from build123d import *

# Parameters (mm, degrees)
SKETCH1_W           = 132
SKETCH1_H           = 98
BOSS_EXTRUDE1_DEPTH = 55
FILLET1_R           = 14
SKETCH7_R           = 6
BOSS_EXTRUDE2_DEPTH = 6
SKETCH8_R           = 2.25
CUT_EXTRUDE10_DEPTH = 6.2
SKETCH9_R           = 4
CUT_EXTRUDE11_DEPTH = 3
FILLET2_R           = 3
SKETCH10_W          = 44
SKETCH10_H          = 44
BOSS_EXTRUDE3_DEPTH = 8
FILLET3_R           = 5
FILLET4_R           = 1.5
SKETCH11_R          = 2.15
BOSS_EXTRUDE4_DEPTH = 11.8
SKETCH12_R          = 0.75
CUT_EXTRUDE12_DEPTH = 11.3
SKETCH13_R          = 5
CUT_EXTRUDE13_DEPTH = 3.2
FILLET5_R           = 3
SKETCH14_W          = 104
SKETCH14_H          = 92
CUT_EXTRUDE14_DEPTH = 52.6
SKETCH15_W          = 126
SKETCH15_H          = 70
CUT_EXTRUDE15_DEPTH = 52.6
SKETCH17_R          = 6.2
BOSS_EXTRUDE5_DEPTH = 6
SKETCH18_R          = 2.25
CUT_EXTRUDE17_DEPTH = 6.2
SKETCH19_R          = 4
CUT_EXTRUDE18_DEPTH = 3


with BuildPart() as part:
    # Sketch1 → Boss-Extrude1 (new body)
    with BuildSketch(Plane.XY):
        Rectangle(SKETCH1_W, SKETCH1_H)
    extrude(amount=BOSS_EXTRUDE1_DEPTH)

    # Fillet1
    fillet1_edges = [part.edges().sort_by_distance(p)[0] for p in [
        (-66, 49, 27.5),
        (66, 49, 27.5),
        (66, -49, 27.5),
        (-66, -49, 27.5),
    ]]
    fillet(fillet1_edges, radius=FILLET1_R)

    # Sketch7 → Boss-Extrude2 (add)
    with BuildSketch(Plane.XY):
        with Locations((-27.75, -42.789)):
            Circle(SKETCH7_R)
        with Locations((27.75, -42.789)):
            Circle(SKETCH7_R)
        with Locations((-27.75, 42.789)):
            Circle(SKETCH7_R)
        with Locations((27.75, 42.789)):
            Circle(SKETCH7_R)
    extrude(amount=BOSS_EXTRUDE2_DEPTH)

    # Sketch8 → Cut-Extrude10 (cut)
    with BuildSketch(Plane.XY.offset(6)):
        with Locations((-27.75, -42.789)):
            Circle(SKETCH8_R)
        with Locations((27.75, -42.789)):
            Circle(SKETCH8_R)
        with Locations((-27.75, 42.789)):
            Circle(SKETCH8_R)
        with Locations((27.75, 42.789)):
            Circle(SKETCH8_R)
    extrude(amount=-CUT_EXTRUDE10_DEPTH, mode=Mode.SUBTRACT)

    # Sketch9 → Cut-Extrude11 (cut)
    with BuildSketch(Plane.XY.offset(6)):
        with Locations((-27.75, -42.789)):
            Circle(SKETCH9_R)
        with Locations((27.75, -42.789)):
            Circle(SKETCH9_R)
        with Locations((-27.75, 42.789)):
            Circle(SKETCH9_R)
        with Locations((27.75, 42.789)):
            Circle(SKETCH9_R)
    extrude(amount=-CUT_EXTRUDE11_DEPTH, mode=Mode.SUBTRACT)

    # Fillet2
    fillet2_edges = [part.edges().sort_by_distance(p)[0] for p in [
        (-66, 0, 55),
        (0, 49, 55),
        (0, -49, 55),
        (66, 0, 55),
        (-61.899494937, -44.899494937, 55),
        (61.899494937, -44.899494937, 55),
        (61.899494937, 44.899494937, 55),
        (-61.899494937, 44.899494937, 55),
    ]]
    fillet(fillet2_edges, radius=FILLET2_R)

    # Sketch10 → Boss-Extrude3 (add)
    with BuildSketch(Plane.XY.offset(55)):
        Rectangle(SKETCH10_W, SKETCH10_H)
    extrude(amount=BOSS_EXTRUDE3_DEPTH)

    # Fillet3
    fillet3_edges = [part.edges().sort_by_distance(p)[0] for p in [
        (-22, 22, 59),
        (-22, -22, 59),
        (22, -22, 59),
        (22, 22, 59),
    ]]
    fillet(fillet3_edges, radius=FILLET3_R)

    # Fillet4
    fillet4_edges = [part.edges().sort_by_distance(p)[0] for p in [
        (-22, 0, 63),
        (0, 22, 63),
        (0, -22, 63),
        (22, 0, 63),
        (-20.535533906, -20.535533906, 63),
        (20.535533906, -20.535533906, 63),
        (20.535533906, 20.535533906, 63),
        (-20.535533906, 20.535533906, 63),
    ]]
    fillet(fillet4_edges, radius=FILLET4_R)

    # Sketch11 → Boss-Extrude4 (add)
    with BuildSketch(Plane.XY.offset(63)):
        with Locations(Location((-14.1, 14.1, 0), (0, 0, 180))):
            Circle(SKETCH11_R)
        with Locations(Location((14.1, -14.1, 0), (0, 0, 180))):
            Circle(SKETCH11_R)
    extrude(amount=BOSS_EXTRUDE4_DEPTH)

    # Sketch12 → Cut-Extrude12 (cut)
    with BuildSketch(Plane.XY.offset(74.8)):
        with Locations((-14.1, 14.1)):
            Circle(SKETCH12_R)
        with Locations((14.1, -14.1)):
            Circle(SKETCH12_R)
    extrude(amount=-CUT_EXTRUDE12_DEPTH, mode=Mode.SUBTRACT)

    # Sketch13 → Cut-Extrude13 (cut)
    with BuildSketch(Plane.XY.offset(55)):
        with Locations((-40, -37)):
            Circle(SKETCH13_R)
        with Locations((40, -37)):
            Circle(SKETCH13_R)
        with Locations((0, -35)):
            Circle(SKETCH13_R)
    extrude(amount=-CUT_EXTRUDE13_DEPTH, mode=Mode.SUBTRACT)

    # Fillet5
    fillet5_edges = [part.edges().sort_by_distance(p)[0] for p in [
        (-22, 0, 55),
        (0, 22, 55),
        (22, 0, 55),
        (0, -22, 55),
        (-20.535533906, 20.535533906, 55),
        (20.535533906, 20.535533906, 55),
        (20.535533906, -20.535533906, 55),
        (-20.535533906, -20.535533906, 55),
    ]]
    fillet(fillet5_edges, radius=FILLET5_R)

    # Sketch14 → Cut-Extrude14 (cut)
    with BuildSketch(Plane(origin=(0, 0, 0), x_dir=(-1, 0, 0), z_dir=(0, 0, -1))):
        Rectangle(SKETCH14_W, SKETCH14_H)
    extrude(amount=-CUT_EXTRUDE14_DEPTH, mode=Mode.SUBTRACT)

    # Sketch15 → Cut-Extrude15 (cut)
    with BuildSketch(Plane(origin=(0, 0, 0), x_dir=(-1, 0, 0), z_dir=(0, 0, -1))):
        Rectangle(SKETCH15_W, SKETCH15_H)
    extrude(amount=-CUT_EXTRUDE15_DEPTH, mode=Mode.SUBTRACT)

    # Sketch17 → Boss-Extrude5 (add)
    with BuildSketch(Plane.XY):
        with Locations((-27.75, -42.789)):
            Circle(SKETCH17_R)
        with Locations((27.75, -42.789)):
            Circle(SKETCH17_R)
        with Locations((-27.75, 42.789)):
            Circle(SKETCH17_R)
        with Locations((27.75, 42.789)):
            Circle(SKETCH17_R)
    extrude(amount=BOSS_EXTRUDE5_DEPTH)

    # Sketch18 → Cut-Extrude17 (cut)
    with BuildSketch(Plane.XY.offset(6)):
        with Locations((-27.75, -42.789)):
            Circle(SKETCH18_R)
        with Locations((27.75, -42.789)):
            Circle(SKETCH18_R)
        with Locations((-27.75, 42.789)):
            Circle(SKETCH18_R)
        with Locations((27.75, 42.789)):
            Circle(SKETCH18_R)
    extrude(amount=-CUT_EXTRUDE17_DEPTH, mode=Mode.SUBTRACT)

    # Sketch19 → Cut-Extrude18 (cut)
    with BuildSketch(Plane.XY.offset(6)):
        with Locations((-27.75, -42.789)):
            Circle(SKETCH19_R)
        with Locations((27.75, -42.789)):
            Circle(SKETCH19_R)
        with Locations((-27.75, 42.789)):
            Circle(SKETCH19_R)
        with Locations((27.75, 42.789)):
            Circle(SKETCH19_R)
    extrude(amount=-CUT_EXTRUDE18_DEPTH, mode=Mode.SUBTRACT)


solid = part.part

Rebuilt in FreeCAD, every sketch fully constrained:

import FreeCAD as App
import Part
import Sketcher
from FreeCAD import Vector


def edges_at(feature, points):
    """Names of the edges that pass closest to the given points."""
    edges = feature.Shape.Edges
    near = lambda p: min(range(len(edges)), key=lambda i: edges[i].distToShape(Part.Vertex(*p))[0])
    return sorted({f"Edge{near(p) + 1}" for p in points})


def add_polygon(sketch, points):
    """Adds a closed chain of lines whose ends are joined by coincident constraints."""
    first, n = sketch.GeometryCount, len(points)
    for a, b in zip(points, points[1:] + points[:1]):
        sketch.addGeometry(Part.LineSegment(App.Vector(*a, 0), App.Vector(*b, 0)), False)
    for i in range(n):
        sketch.addConstraint(Sketcher.Constraint("Coincident", first + i, 2, first + (i + 1) % n, 1))

doc = App.newDocument("Part")
body = doc.addObject("PartDesign::Body", "Body")

# Sketch on XY plane
sketch1 = body.newObject("Sketcher::SketchObject", "Sketch")
sketch1.AttachmentSupport = (doc.getObject("XY_Plane"), [""])
sketch1.MapMode = "FlatFace"
add_polygon(sketch1, [(-66, 49), (-66, -49), (66, -49), (66, 49)])  # lines 0-3
sketch1.addConstraint([
    Sketcher.Constraint("Vertical", 0),
    Sketcher.Constraint("Horizontal", 1),
    Sketcher.Constraint("Vertical", 2),
    Sketcher.Constraint("Horizontal", 3),
    Sketcher.Constraint("Symmetric", 0, 2, 2, 2, -1, 1),
    Sketcher.Constraint("DistanceX", 1, 1, 1, 2, 132.0),
    Sketcher.Constraint("DistanceY", 0, 2, 0, 1, 98.0),
])
pad1 = body.newObject("PartDesign::Pad", "Pad")
pad1.Profile = sketch1
pad1.Length = 55
doc.recompute()

fillet = body.newObject("PartDesign::Fillet", "Fillet")
fillet.Base = (pad1, edges_at(pad1, [
    (-66, 49, 27.5),
    (66, 49, 27.5),
    (66, -49, 27.5),
    (-66, -49, 27.5),
]))
fillet.Radius = 14

# Sketch on XY plane
sketch2 = body.newObject("Sketcher::SketchObject", "Sketch001")
sketch2.AttachmentSupport = (doc.getObject("XY_Plane"), [""])
sketch2.MapMode = "FlatFace"
sketch2.addGeometry([
    Part.Circle(Vector(-28, -43, 0), Vector(0, 0, 1), 6),
    Part.Circle(Vector(28, -43, 0), Vector(0, 0, 1), 6),
    Part.Circle(Vector(-28, 43, 0), Vector(0, 0, 1), 6),
    Part.Circle(Vector(28, 43, 0), Vector(0, 0, 1), 6),
], False)
sketch2.addConstraint([
    Sketcher.Constraint("Equal", 0, 1),
    Sketcher.Constraint("Equal", 1, 2),
    Sketcher.Constraint("Equal", 2, 3),
    Sketcher.Constraint("Symmetric", 1, 3, 2, 3, -1, 1),
    Sketcher.Constraint("Symmetric", 0, 3, 3, 3, -1, 1),
    Sketcher.Constraint("Symmetric", 0, 3, 1, 3, -2),
    Sketcher.Constraint("Diameter", 0, 12.0),
    Sketcher.Constraint("DistanceX", 0, 3, 1, 3, 55.5),
    Sketcher.Constraint("DistanceY", 0, 3, -1, 1, 42.789),
])
pad2 = body.newObject("PartDesign::Pad", "Pad001")
pad2.Profile = sketch2
pad2.Length = 6

# Sketch on XY plane
sketch3 = body.newObject("Sketcher::SketchObject", "Sketch002")
sketch3.AttachmentSupport = (doc.getObject("XY_Plane"), [""])
sketch3.MapMode = "FlatFace"
sketch3.AttachmentOffset = App.Placement(Vector(0, 0, 6), App.Rotation())
sketch3.addGeometry([
    Part.Circle(Vector(-27.8, -42.8, 0), Vector(0, 0, 1), 2.2),
    Part.Circle(Vector(27.8, -42.8, 0), Vector(0, 0, 1), 2.2),
    Part.Circle(Vector(-27.8, 42.8, 0), Vector(0, 0, 1), 2.2),
    Part.Circle(Vector(27.8, 42.8, 0), Vector(0, 0, 1), 2.2),
], False)
sketch3.addConstraint([
    Sketcher.Constraint("Equal", 0, 1),
    Sketcher.Constraint("Equal", 1, 2),
    Sketcher.Constraint("Equal", 2, 3),
    Sketcher.Constraint("Symmetric", 1, 3, 2, 3, -1, 1),
    Sketcher.Constraint("Symmetric", 0, 3, 3, 3, -1, 1),
    Sketcher.Constraint("Symmetric", 0, 3, 1, 3, -2),
    Sketcher.Constraint("Diameter", 0, 4.5),
    Sketcher.Constraint("DistanceX", 0, 3, 1, 3, 55.5),
    Sketcher.Constraint("DistanceY", 0, 3, -1, 1, 42.789),
])
pocket1 = body.newObject("PartDesign::Pocket", "Pocket")
pocket1.Profile = sketch3
pocket1.Length = 6.2

# Sketch on XY plane
sketch4 = body.newObject("Sketcher::SketchObject", "Sketch003")
sketch4.AttachmentSupport = (doc.getObject("XY_Plane"), [""])
sketch4.MapMode = "FlatFace"
sketch4.AttachmentOffset = App.Placement(Vector(0, 0, 6), App.Rotation())
sketch4.addGeometry([
    Part.Circle(Vector(-27.8, -42.8, 0), Vector(0, 0, 1), 4),
    Part.Circle(Vector(27.8, -42.8, 0), Vector(0, 0, 1), 4),
    Part.Circle(Vector(-27.8, 42.8, 0), Vector(0, 0, 1), 4),
    Part.Circle(Vector(27.8, 42.8, 0), Vector(0, 0, 1), 4),
], False)
sketch4.addConstraint([
    Sketcher.Constraint("Equal", 0, 1),
    Sketcher.Constraint("Equal", 1, 2),
    Sketcher.Constraint("Equal", 2, 3),
    Sketcher.Constraint("Symmetric", 1, 3, 2, 3, -1, 1),
    Sketcher.Constraint("Symmetric", 0, 3, 3, 3, -1, 1),
    Sketcher.Constraint("Symmetric", 0, 3, 1, 3, -2),
    Sketcher.Constraint("Diameter", 0, 8.0),
    Sketcher.Constraint("DistanceX", 0, 3, 1, 3, 55.5),
    Sketcher.Constraint("DistanceY", 0, 3, -1, 1, 42.789),
])
pocket2 = body.newObject("PartDesign::Pocket", "Pocket001")
pocket2.Profile = sketch4
pocket2.Length = 3
doc.recompute()

fillet2 = body.newObject("PartDesign::Fillet", "Fillet001")
fillet2.Base = (pocket2, edges_at(pocket2, [
    (-66, 0, 55),
    (0, 49, 55),
    (0, -49, 55),
    (66, 0, 55),
    (-61.899, -44.899, 55),
    (61.899, -44.899, 55),
    (61.899, 44.899, 55),
    (-61.899, 44.899, 55),
]))
fillet2.Radius = 3

# Sketch on XY plane
sketch5 = body.newObject("Sketcher::SketchObject", "Sketch004")
sketch5.AttachmentSupport = (doc.getObject("XY_Plane"), [""])
sketch5.MapMode = "FlatFace"
sketch5.AttachmentOffset = App.Placement(Vector(0, 0, 55), App.Rotation())
add_polygon(sketch5, [(-22, 22), (-22, -22), (22, -22), (22, 22)])  # lines 0-3
sketch5.addConstraint([
    Sketcher.Constraint("Vertical", 0),
    Sketcher.Constraint("Horizontal", 1),
    Sketcher.Constraint("Vertical", 2),
    Sketcher.Constraint("Horizontal", 3),
    Sketcher.Constraint("Symmetric", 0, 2, 2, 2, -1, 1),
    Sketcher.Constraint("Equal", 3, 0),
    Sketcher.Constraint("DistanceX", 1, 1, 1, 2, 44.0),
])
pad3 = body.newObject("PartDesign::Pad", "Pad002")
pad3.Profile = sketch5
pad3.Length = 8
doc.recompute()

fillet3 = body.newObject("PartDesign::Fillet", "Fillet002")
fillet3.Base = (pad3, edges_at(pad3, [
    (-22, 22, 59),
    (-22, -22, 59),
    (22, -22, 59),
    (22, 22, 59),
]))
fillet3.Radius = 5
doc.recompute()

fillet4 = body.newObject("PartDesign::Fillet", "Fillet003")
fillet4.Base = (fillet3, edges_at(fillet3, [
    (-22, 0, 63),
    (0, 22, 63),
    (0, -22, 63),
    (22, 0, 63),
    (-20.536, -20.536, 63),
    (20.536, -20.536, 63),
    (20.536, 20.536, 63),
    (-20.536, 20.536, 63),
]))
fillet4.Radius = 1.5

# Sketch on XY plane
sketch6 = body.newObject("Sketcher::SketchObject", "Sketch005")
sketch6.AttachmentSupport = (doc.getObject("XY_Plane"), [""])
sketch6.MapMode = "FlatFace"
sketch6.AttachmentOffset = App.Placement(Vector(0, 0, 63), App.Rotation())
sketch6.addGeometry([
    Part.Circle(Vector(-14.1, 14.1, 0), Vector(0, 0, 1), 2.1),
    Part.Circle(Vector(14.1, -14.1, 0), Vector(0, 0, 1), 2.1),
], False)
sketch6.addConstraint([
    Sketcher.Constraint("Equal", 0, 1),
    Sketcher.Constraint("Symmetric", 0, 3, 1, 3, -1, 1),
    Sketcher.Constraint("Diameter", 0, 4.3),
    Sketcher.Constraint("DistanceX", 0, 3, -1, 1, 14.1),
    Sketcher.Constraint("DistanceY", -1, 1, 0, 3, 14.1),
])
pad4 = body.newObject("PartDesign::Pad", "Pad003")
pad4.Profile = sketch6
pad4.Length = 11.8

# Sketch on XY plane
sketch7 = body.newObject("Sketcher::SketchObject", "Sketch006")
sketch7.AttachmentSupport = (doc.getObject("XY_Plane"), [""])
sketch7.MapMode = "FlatFace"
sketch7.AttachmentOffset = App.Placement(Vector(0, 0, 74.8), App.Rotation())
sketch7.addGeometry([
    Part.Circle(Vector(-14.1, 14.1, 0), Vector(0, 0, 1), 0.8),
    Part.Circle(Vector(14.1, -14.1, 0), Vector(0, 0, 1), 0.8),
], False)
sketch7.addConstraint([
    Sketcher.Constraint("Equal", 0, 1),
    Sketcher.Constraint("Symmetric", 0, 3, 1, 3, -1, 1),
    Sketcher.Constraint("Diameter", 0, 1.5),
    Sketcher.Constraint("DistanceX", 0, 3, -1, 1, 14.1),
    Sketcher.Constraint("DistanceY", -1, 1, 0, 3, 14.1),
])
pocket3 = body.newObject("PartDesign::Pocket", "Pocket002")
pocket3.Profile = sketch7
pocket3.Length = 11.3

# Sketch on XY plane
sketch8 = body.newObject("Sketcher::SketchObject", "Sketch007")
sketch8.AttachmentSupport = (doc.getObject("XY_Plane"), [""])
sketch8.MapMode = "FlatFace"
sketch8.AttachmentOffset = App.Placement(Vector(0, 0, 55), App.Rotation())
sketch8.addGeometry([
    Part.Circle(Vector(-40, -37, 0), Vector(0, 0, 1), 5),
    Part.Circle(Vector(40, -37, 0), Vector(0, 0, 1), 5),
    Part.Circle(Vector(0, -35, 0), Vector(0, 0, 1), 5),
], False)
sketch8.addConstraint([
    Sketcher.Constraint("Equal", 0, 1),
    Sketcher.Constraint("Equal", 1, 2),
    Sketcher.Constraint("Symmetric", 0, 3, 1, 3, -2),
    Sketcher.Constraint("PointOnObject", 2, 3, -2),
    Sketcher.Constraint("Diameter", 0, 10.0),
    Sketcher.Constraint("DistanceX", 0, 3, -1, 1, 40.0),
    Sketcher.Constraint("DistanceY", 0, 3, -1, 1, 37.0),
    Sketcher.Constraint("DistanceY", 2, 3, -1, 1, 35.0),
])
pocket4 = body.newObject("PartDesign::Pocket", "Pocket003")
pocket4.Profile = sketch8
pocket4.Length = 3.2
doc.recompute()

fillet5 = body.newObject("PartDesign::Fillet", "Fillet004")
fillet5.Base = (pocket4, edges_at(pocket4, [
    (-22, 0, 55),
    (0, 22, 55),
    (22, 0, 55),
    (0, -22, 55),
    (-20.536, 20.536, 55),
    (20.536, 20.536, 55),
    (20.536, -20.536, 55),
    (-20.536, -20.536, 55),
]))
fillet5.Radius = 3

# Sketch on XY plane
sketch9 = body.newObject("Sketcher::SketchObject", "Sketch008")
sketch9.AttachmentSupport = (doc.getObject("XY_Plane"), [""])
sketch9.MapMode = "FlatFace"
add_polygon(sketch9, [(52, 46), (52, -46), (-52, -46), (-52, 46)])  # lines 0-3
sketch9.addConstraint([
    Sketcher.Constraint("Vertical", 0),
    Sketcher.Constraint("Horizontal", 1),
    Sketcher.Constraint("Vertical", 2),
    Sketcher.Constraint("Horizontal", 3),
    Sketcher.Constraint("Symmetric", 0, 2, 2, 2, -1, 1),
    Sketcher.Constraint("DistanceX", 1, 2, 1, 1, 104.0),
    Sketcher.Constraint("DistanceY", 0, 2, 0, 1, 92.0),
])
pocket5 = body.newObject("PartDesign::Pocket", "Pocket004")
pocket5.Profile = sketch9
pocket5.Length = 52.6
pocket5.Reversed = True

# Sketch on XY plane
sketch10 = body.newObject("Sketcher::SketchObject", "Sketch009")
sketch10.AttachmentSupport = (doc.getObject("XY_Plane"), [""])
sketch10.MapMode = "FlatFace"
add_polygon(sketch10, [(63, 35), (63, -35), (-63, -35), (-63, 35)])  # lines 0-3
sketch10.addConstraint([
    Sketcher.Constraint("Vertical", 0),
    Sketcher.Constraint("Horizontal", 1),
    Sketcher.Constraint("Vertical", 2),
    Sketcher.Constraint("Horizontal", 3),
    Sketcher.Constraint("Symmetric", 0, 2, 2, 2, -1, 1),
    Sketcher.Constraint("DistanceX", 1, 2, 1, 1, 126.0),
    Sketcher.Constraint("DistanceY", 0, 2, 0, 1, 70.0),
])
pocket6 = body.newObject("PartDesign::Pocket", "Pocket005")
pocket6.Profile = sketch10
pocket6.Length = 52.6
pocket6.Reversed = True

# Sketch on XY plane
sketch11 = body.newObject("Sketcher::SketchObject", "Sketch010")
sketch11.AttachmentSupport = (doc.getObject("XY_Plane"), [""])
sketch11.MapMode = "FlatFace"
sketch11.addGeometry([
    Part.Circle(Vector(-28, -43, 0), Vector(0, 0, 1), 6),
    Part.Circle(Vector(28, -43, 0), Vector(0, 0, 1), 6),
    Part.Circle(Vector(-28, 43, 0), Vector(0, 0, 1), 6),
    Part.Circle(Vector(28, 43, 0), Vector(0, 0, 1), 6),
], False)
sketch11.addConstraint([
    Sketcher.Constraint("Equal", 0, 1),
    Sketcher.Constraint("Equal", 1, 2),
    Sketcher.Constraint("Equal", 2, 3),
    Sketcher.Constraint("Symmetric", 1, 3, 2, 3, -1, 1),
    Sketcher.Constraint("Symmetric", 0, 3, 3, 3, -1, 1),
    Sketcher.Constraint("Symmetric", 0, 3, 1, 3, -2),
    Sketcher.Constraint("Diameter", 0, 12.4),
    Sketcher.Constraint("DistanceX", 0, 3, 1, 3, 55.5),
    Sketcher.Constraint("DistanceY", 0, 3, -1, 1, 42.789),
])
pad5 = body.newObject("PartDesign::Pad", "Pad004")
pad5.Profile = sketch11
pad5.Length = 6

# Sketch on XY plane
sketch12 = body.newObject("Sketcher::SketchObject", "Sketch011")
sketch12.AttachmentSupport = (doc.getObject("XY_Plane"), [""])
sketch12.MapMode = "FlatFace"
sketch12.AttachmentOffset = App.Placement(Vector(0, 0, 6), App.Rotation())
sketch12.addGeometry([
    Part.Circle(Vector(-27.8, -42.8, 0), Vector(0, 0, 1), 2.2),
    Part.Circle(Vector(27.8, -42.8, 0), Vector(0, 0, 1), 2.2),
    Part.Circle(Vector(-27.8, 42.8, 0), Vector(0, 0, 1), 2.2),
    Part.Circle(Vector(27.8, 42.8, 0), Vector(0, 0, 1), 2.2),
], False)
sketch12.addConstraint([
    Sketcher.Constraint("Equal", 0, 1),
    Sketcher.Constraint("Equal", 1, 2),
    Sketcher.Constraint("Equal", 2, 3),
    Sketcher.Constraint("Symmetric", 1, 3, 2, 3, -1, 1),
    Sketcher.Constraint("Symmetric", 0, 3, 3, 3, -1, 1),
    Sketcher.Constraint("Symmetric", 0, 3, 1, 3, -2),
    Sketcher.Constraint("Diameter", 0, 4.5),
    Sketcher.Constraint("DistanceX", 0, 3, 1, 3, 55.5),
    Sketcher.Constraint("DistanceY", 0, 3, -1, 1, 42.789),
])
pocket7 = body.newObject("PartDesign::Pocket", "Pocket006")
pocket7.Profile = sketch12
pocket7.Length = 6.2

# Sketch on XY plane
sketch13 = body.newObject("Sketcher::SketchObject", "Sketch012")
sketch13.AttachmentSupport = (doc.getObject("XY_Plane"), [""])
sketch13.MapMode = "FlatFace"
sketch13.AttachmentOffset = App.Placement(Vector(0, 0, 6), App.Rotation())
sketch13.addGeometry([
    Part.Circle(Vector(-27.8, -42.8, 0), Vector(0, 0, 1), 4),
    Part.Circle(Vector(27.8, -42.8, 0), Vector(0, 0, 1), 4),
    Part.Circle(Vector(-27.8, 42.8, 0), Vector(0, 0, 1), 4),
    Part.Circle(Vector(27.8, 42.8, 0), Vector(0, 0, 1), 4),
], False)
sketch13.addConstraint([
    Sketcher.Constraint("Equal", 0, 1),
    Sketcher.Constraint("Equal", 1, 2),
    Sketcher.Constraint("Equal", 2, 3),
    Sketcher.Constraint("Symmetric", 1, 3, 2, 3, -1, 1),
    Sketcher.Constraint("Symmetric", 0, 3, 3, 3, -1, 1),
    Sketcher.Constraint("Symmetric", 0, 3, 1, 3, -2),
    Sketcher.Constraint("Diameter", 0, 8.0),
    Sketcher.Constraint("DistanceX", 0, 3, 1, 3, 55.5),
    Sketcher.Constraint("DistanceY", 0, 3, -1, 1, 42.789),
])
pocket8 = body.newObject("PartDesign::Pocket", "Pocket007")
pocket8.Profile = sketch13
pocket8.Length = 3

doc.recompute()
